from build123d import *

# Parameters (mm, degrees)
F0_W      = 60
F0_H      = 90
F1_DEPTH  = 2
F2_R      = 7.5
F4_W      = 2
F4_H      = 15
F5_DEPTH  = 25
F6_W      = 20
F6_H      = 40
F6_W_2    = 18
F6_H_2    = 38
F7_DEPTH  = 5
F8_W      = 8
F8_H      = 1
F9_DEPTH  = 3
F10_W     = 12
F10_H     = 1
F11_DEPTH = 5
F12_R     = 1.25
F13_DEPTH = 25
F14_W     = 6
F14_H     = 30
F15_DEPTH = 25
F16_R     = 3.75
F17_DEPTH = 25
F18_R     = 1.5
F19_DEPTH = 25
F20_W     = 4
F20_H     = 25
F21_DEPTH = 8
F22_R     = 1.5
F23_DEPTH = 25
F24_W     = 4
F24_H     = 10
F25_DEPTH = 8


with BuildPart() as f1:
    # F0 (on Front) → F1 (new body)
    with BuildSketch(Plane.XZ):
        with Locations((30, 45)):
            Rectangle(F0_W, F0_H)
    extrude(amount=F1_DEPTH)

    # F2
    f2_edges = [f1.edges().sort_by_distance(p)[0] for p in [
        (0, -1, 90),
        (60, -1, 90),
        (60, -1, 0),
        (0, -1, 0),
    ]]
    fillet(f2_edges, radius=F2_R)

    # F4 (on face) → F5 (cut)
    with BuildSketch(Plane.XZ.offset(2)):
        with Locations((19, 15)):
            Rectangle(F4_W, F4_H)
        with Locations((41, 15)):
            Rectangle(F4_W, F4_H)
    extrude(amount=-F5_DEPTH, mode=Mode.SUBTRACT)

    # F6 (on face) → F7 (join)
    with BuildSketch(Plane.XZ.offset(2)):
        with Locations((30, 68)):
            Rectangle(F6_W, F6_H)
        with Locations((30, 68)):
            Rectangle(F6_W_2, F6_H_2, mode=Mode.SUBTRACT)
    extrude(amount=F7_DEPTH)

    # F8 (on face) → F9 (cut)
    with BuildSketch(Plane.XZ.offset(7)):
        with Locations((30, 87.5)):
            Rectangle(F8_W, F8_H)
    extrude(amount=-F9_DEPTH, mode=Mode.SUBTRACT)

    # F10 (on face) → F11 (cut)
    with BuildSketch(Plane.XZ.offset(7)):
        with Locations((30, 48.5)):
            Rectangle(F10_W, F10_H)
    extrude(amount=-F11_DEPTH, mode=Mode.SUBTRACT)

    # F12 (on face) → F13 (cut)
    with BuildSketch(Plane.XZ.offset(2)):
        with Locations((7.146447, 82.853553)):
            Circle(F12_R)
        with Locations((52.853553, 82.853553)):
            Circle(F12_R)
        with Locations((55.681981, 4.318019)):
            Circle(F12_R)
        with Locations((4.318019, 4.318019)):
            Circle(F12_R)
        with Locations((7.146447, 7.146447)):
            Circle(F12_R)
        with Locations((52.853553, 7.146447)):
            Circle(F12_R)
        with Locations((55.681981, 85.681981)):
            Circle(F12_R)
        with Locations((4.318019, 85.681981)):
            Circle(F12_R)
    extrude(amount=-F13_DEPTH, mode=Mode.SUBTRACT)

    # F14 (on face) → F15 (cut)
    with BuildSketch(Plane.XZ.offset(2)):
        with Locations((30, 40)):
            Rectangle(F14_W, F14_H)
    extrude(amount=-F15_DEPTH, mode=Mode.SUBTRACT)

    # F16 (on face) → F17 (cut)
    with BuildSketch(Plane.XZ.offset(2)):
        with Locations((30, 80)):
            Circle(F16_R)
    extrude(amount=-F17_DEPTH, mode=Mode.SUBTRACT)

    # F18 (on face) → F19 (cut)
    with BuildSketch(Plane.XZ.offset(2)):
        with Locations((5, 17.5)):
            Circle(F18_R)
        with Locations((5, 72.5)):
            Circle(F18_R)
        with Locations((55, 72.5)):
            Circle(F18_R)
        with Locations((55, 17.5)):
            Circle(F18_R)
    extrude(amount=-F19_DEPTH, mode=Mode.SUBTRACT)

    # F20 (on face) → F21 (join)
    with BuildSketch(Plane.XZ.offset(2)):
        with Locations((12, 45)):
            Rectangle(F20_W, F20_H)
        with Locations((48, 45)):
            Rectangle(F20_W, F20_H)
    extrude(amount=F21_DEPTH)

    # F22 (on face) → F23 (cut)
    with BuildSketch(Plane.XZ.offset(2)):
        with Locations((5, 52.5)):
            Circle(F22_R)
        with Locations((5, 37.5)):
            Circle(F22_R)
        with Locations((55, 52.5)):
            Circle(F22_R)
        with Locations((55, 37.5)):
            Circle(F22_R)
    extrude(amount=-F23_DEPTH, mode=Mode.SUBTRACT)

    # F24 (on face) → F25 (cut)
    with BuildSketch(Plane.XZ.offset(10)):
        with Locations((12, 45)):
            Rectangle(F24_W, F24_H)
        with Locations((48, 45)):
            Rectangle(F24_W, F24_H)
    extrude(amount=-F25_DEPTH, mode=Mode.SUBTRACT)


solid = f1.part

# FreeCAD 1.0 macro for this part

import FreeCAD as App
import Part
import Sketcher
from FreeCAD import Vector


def edges_at(feature, points):
    """Names of the edges that pass closest to the given points."""
    edges = feature.Shape.Edges
    near = lambda p: min(range(len(edges)), key=lambda i: edges[i].distToShape(Part.Vertex(*p))[0])
    return sorted({f"Edge{near(p) + 1}" for p in points})


def add_polygon(sketch, points):
    """Adds a closed chain of lines whose ends are joined by coincident constraints."""
    first, n = sketch.GeometryCount, len(points)
    for a, b in zip(points, points[1:] + points[:1]):
        sketch.addGeometry(Part.LineSegment(App.Vector(*a, 0), App.Vector(*b, 0)), False)
    for i in range(n):
        sketch.addConstraint(Sketcher.Constraint("Coincident", first + i, 2, first + (i + 1) % n, 1))

doc = App.newDocument("Part")
body = doc.addObject("PartDesign::Body", "Body")

# Sketch on XZ plane
sketch1 = body.newObject("Sketcher::SketchObject", "Sketch")
sketch1.AttachmentSupport = (doc.getObject("XZ_Plane"), [""])
sketch1.MapMode = "FlatFace"
add_polygon(sketch1, [(0, 90), (0, 0), (60, 0), (60, 90)])  # lines 0-3
sketch1.addConstraint([
    Sketcher.Constraint("Vertical", 0),
    Sketcher.Constraint("Horizontal", 1),
    Sketcher.Constraint("Vertical", 2),
    Sketcher.Constraint("Horizontal", 3),
    Sketcher.Constraint("Coincident", 0, 2, -1, 1),
    Sketcher.Constraint("DistanceX", 1, 1, 1, 2, 60.0),
    Sketcher.Constraint("DistanceY", 0, 2, 0, 1, 90.0),
])
pad1 = body.newObject("PartDesign::Pad", "Pad")
pad1.Profile = sketch1
pad1.Length = 2
doc.recompute()

fillet = body.newObject("PartDesign::Fillet", "Fillet")
fillet.Base = (pad1, edges_at(pad1, [
    (0, -1, 90),
    (60, -1, 90),
    (60, -1, 0),
    (0, -1, 0),
]))
fillet.Radius = 7.5

# Sketch on XZ plane
sketch2 = body.newObject("Sketcher::SketchObject", "Sketch001")
sketch2.AttachmentSupport = (doc.getObject("XZ_Plane"), [""])
sketch2.MapMode = "FlatFace"
sketch2.AttachmentOffset = App.Placement(Vector(0, 0, 2), App.Rotation())
add_polygon(sketch2, [(18, 22.5), (18, 7.5), (20, 7.5), (20, 22.5)])  # lines 0-3
add_polygon(sketch2, [(40, 22.5), (40, 7.5), (42, 7.5), (42, 22.5)])  # lines 4-7
sketch2.addConstraint([
    Sketcher.Constraint("Vertical", 0),
    Sketcher.Constraint("Horizontal", 1),
    Sketcher.Constraint("Vertical", 2),
    Sketcher.Constraint("Horizontal", 3),
    Sketcher.Constraint("Vertical", 4),
    Sketcher.Constraint("Horizontal", 5),
    Sketcher.Constraint("Vertical", 6),
    Sketcher.Constraint("Horizontal", 7),
    Sketcher.Constraint("Horizontal", 1, 2, 4, 2),
    Sketcher.Constraint("Horizontal", 3, 2, 6, 2),
    Sketcher.Constraint("Equal", 3, 5),
    Sketcher.Constraint("DistanceX", 1, 1, 1, 2, 2.0),
    Sketcher.Constraint("DistanceY", 0, 2, 0, 1, 15.0),
    Sketcher.Constraint("DistanceX", -1, 1, 0, 2, 18.0),
    Sketcher.Constraint("DistanceX", -1, 1, 4, 2, 40.0),
    Sketcher.Constraint("DistanceY", -1, 1, 0, 2, 7.5),
])
pocket1 = body.newObject("PartDesign::Pocket", "Pocket")
pocket1.Profile = sketch2
pocket1.Length = 25

# Sketch on XZ plane
sketch3 = body.newObject("Sketcher::SketchObject", "Sketch002")
sketch3.AttachmentSupport = (doc.getObject("XZ_Plane"), [""])
sketch3.MapMode = "FlatFace"
sketch3.AttachmentOffset = App.Placement(Vector(0, 0, 2), App.Rotation())
add_polygon(sketch3, [(20, 88), (20, 48), (40, 48), (40, 88)])  # lines 0-3
add_polygon(sketch3, [(39, 49), (21, 49), (21, 87), (39, 87)])  # lines 4-7
sketch3.addConstraint([
    Sketcher.Constraint("Vertical", 0),
    Sketcher.Constraint("Horizontal", 1),
    Sketcher.Constraint("Vertical", 2),
    Sketcher.Constraint("Horizontal", 3),
    Sketcher.Constraint("Horizontal", 4),
    Sketcher.Constraint("Vertical", 5),
    Sketcher.Constraint("Horizontal", 6),
    Sketcher.Constraint("Vertical", 7),
    Sketcher.Constraint("DistanceX", 1, 1, 1, 2, 20.0),
    Sketcher.Constraint("DistanceX", 4, 2, 4, 1, 18.0),
    Sketcher.Constraint("DistanceY", 0, 2, 0, 1, 40.0),
    Sketcher.Constraint("DistanceY", 5, 1, 5, 2, 38.0),
    Sketcher.Constraint("DistanceX", -1, 1, 0, 2, 20.0),
    Sketcher.Constraint("DistanceY", -1, 1, 0, 2, 48.0),
    Sketcher.Constraint("DistanceX", -1, 1, 4, 2, 21.0),
    Sketcher.Constraint("DistanceY", -1, 1, 4, 2, 49.0),
])
pad2 = body.newObject("PartDesign::Pad", "Pad001")
pad2.Profile = sketch3
pad2.Length = 5

# Sketch on XZ plane
sketch4 = body.newObject("Sketcher::SketchObject", "Sketch003")
sketch4.AttachmentSupport = (doc.getObject("XZ_Plane"), [""])
sketch4.MapMode = "FlatFace"
sketch4.AttachmentOffset = App.Placement(Vector(0, 0, 7), App.Rotation())
add_polygon(sketch4, [(26, 88), (26, 87), (34, 87), (34, 88)])  # lines 0-3
sketch4.addConstraint([
    Sketcher.Constraint("Vertical", 0),
    Sketcher.Constraint("Horizontal", 1),
    Sketcher.Constraint("Vertical", 2),
    Sketcher.Constraint("Horizontal", 3),
    Sketcher.Constraint("DistanceX", 1, 1, 1, 2, 8.0),
    Sketcher.Constraint("DistanceY", 0, 2, 0, 1, 1.0),
    Sketcher.Constraint("DistanceX", -1, 1, 0, 2, 26.0),
    Sketcher.Constraint("DistanceY", -1, 1, 0, 2, 87.0),
])
pocket2 = body.newObject("PartDesign::Pocket", "Pocket001")
pocket2.Profile = sketch4
pocket2.Length = 3

# Sketch on XZ plane
sketch5 = body.newObject("Sketcher::SketchObject", "Sketch004")
sketch5.AttachmentSupport = (doc.getObject("XZ_Plane"), [""])
sketch5.MapMode = "FlatFace"
sketch5.AttachmentOffset = App.Placement(Vector(0, 0, 7), App.Rotation())
add_polygon(sketch5, [(24, 49), (24, 48), (36, 48), (36, 49)])  # lines 0-3
sketch5.addConstraint([
    Sketcher.Constraint("Vertical", 0),
    Sketcher.Constraint("Horizontal", 1),
    Sketcher.Constraint("Vertical", 2),
    Sketcher.Constraint("Horizontal", 3),
    Sketcher.Constraint("DistanceX", 1, 1, 1, 2, 12.0),
    Sketcher.Constraint("DistanceY", 0, 2, 0, 1, 1.0),
    Sketcher.Constraint("DistanceX", -1, 1, 0, 2, 24.0),
    Sketcher.Constraint("DistanceY", -1, 1, 0, 2, 48.0),
])
pocket3 = body.newObject("PartDesign::Pocket", "Pocket002")
pocket3.Profile = sketch5
pocket3.Length = 5

# Sketch on XZ plane
sketch6 = body.newObject("Sketcher::SketchObject", "Sketch005")
sketch6.AttachmentSupport = (doc.getObject("XZ_Plane"), [""])
sketch6.MapMode = "FlatFace"
sketch6.AttachmentOffset = App.Placement(Vector(0, 0, 2), App.Rotation())
sketch6.addGeometry([
    Part.Circle(Vector(7.1, 82.9, 0), Vector(0, 0, 1), 1.2),  # 0
    Part.Circle(Vector(52.9, 82.9, 0), Vector(0, 0, 1), 1.2),  # 1
    Part.Circle(Vector(55.7, 4.3, 0), Vector(0, 0, 1), 1.2),  # 2
    Part.Circle(Vector(4.3, 4.3, 0), Vector(0, 0, 1), 1.2),  # 3
    Part.Circle(Vector(7.1, 7.1, 0), Vector(0, 0, 1), 1.2),  # 4
    Part.Circle(Vector(52.9, 7.1, 0), Vector(0, 0, 1), 1.2),  # 5
    Part.Circle(Vector(55.7, 85.7, 0), Vector(0, 0, 1), 1.2),  # 6
    Part.Circle(Vector(4.3, 85.7, 0), Vector(0, 0, 1), 1.2),  # 7
], False)
sketch6.addConstraint([
    Sketcher.Constraint("Equal", 0, 1),
    Sketcher.Constraint("Equal", 1, 2),
    Sketcher.Constraint("Equal", 2, 3),
    Sketcher.Constraint("Equal", 3, 4),
    Sketcher.Constraint("Equal", 4, 5),
    Sketcher.Constraint("Equal", 5, 6),
    Sketcher.Constraint("Equal", 6, 7),
    Sketcher.Constraint("Horizontal", 0, 3, 1, 3),
    Sketcher.Constraint("Horizontal", 2, 3, 3, 3),
    Sketcher.Constraint("Horizontal", 4, 3, 5, 3),
    Sketcher.Constraint("Horizontal", 6, 3, 7, 3),
    Sketcher.Constraint("Vertical", 0, 3, 4, 3),
    Sketcher.Constraint("Vertical", 1, 3, 5, 3),
    Sketcher.Constraint("Vertical", 2, 3, 6, 3),
    Sketcher.Constraint("Vertical", 3, 3, 7, 3),
    Sketcher.Constraint("Diameter", 0, 2.5),
    Sketcher.Constraint("DistanceX", -1, 1, 2, 3, 55.681981),
    Sketcher.Constraint("DistanceY", -1, 1, 2, 3, 4.318019),
    Sketcher.Constraint("DistanceX", -1, 1, 3, 3, 4.318019),
    Sketcher.Constraint("DistanceY", -1, 1, 6, 3, 85.681981),
    Sketcher.Constraint("DistanceX", 1, 3, 2, 3, 2.828428),
    Sketcher.Constraint("DistanceX", 3, 3, 0, 3, 2.828428),
    Sketcher.Constraint("DistanceY", 3, 3, 4, 3, 2.828428),
    Sketcher.Constraint("DistanceY", -1, 1, 0, 3, 82.853553),
])
pocket4 = body.newObject("PartDesign::Pocket", "Pocket003")
pocket4.Profile = sketch6
pocket4.Length = 25

# Sketch on XZ plane
sketch7 = body.newObject("Sketcher::SketchObject", "Sketch006")
sketch7.AttachmentSupport = (doc.getObject("XZ_Plane"), [""])
sketch7.MapMode = "FlatFace"
sketch7.AttachmentOffset = App.Placement(Vector(0, 0, 2), App.Rotation())
add_polygon(sketch7, [(27, 55), (27, 25), (33, 25), (33, 55)])  # lines 0-3
sketch7.addConstraint([
    Sketcher.Constraint("Vertical", 0),
    Sketcher.Constraint("Horizontal", 1),
    Sketcher.Constraint("Vertical", 2),
    Sketcher.Constraint("Horizontal", 3),
    Sketcher.Constraint("DistanceX", 1, 1, 1, 2, 6.0),
    Sketcher.Constraint("DistanceY", 0, 2, 0, 1, 30.0),
    Sketcher.Constraint("DistanceX", -1, 1, 0, 2, 27.0),
    Sketcher.Constraint("DistanceY", -1, 1, 0, 2, 25.0),
])
pocket5 = body.newObject("PartDesign::Pocket", "Pocket004")
pocket5.Profile = sketch7
pocket5.Length = 25

# Sketch on XZ plane
sketch8 = body.newObject("Sketcher::SketchObject", "Sketch007")
sketch8.AttachmentSupport = (doc.getObject("XZ_Plane"), [""])
sketch8.MapMode = "FlatFace"
sketch8.AttachmentOffset = App.Placement(Vector(0, 0, 2), App.Rotation())
sketch8.addGeometry(Part.Circle(Vector(30, 80, 0), Vector(0, 0, 1), 3.8), False)
sketch8.addConstraint([
    Sketcher.Constraint("Diameter", 0, 7.5),
    Sketcher.Constraint("DistanceX", -1, 1, 0, 3, 30.0),
    Sketcher.Constraint("DistanceY", -1, 1, 0, 3, 80.0),
])
pocket6 = body.newObject("PartDesign::Pocket", "Pocket005")
pocket6.Profile = sketch8
pocket6.Length = 25

# Sketch on XZ plane
sketch9 = body.newObject("Sketcher::SketchObject", "Sketch008")
sketch9.AttachmentSupport = (doc.getObject("XZ_Plane"), [""])
sketch9.MapMode = "FlatFace"
sketch9.AttachmentOffset = App.Placement(Vector(0, 0, 2), App.Rotation())
sketch9.addGeometry([
    Part.Circle(Vector(5, 17.5, 0), Vector(0, 0, 1), 1.5),
    Part.Circle(Vector(5, 72.5, 0), Vector(0, 0, 1), 1.5),
    Part.Circle(Vector(55, 72.5, 0), Vector(0, 0, 1), 1.5),
    Part.Circle(Vector(55, 17.5, 0), Vector(0, 0, 1), 1.5),
], False)
sketch9.addConstraint([
    Sketcher.Constraint("Equal", 0, 1),
    Sketcher.Constraint("Equal", 1, 2),
    Sketcher.Constraint("Equal", 2, 3),
    Sketcher.Constraint("Horizontal", 1, 3, 2, 3),
    Sketcher.Constraint("Horizontal", 0, 3, 3, 3),
    Sketcher.Constraint("Vertical", 0, 3, 1, 3),
    Sketcher.Constraint("Vertical", 2, 3, 3, 3),
    Sketcher.Constraint("Diameter", 0, 3.0),
    Sketcher.Constraint("DistanceX", -1, 1, 0, 3, 5.0),
    Sketcher.Constraint("DistanceX", -1, 1, 2, 3, 55.0),
    Sketcher.Constraint("DistanceY", 0, 3, 1, 3, 55.0),
    Sketcher.Constraint("DistanceY", -1, 1, 0, 3, 17.5),
])
pocket7 = body.newObject("PartDesign::Pocket", "Pocket006")
pocket7.Profile = sketch9
pocket7.Length = 25

# Sketch on XZ plane
sketch10 = body.newObject("Sketcher::SketchObject", "Sketch009")
sketch10.AttachmentSupport = (doc.getObject("XZ_Plane"), [""])
sketch10.MapMode = "FlatFace"
sketch10.AttachmentOffset = App.Placement(Vector(0, 0, 2), App.Rotation())
add_polygon(sketch10, [(10, 57.5), (10, 32.5), (14, 32.5), (14, 57.5)])  # lines 0-3
add_polygon(sketch10, [(46, 57.5), (46, 32.5), (50, 32.5), (50, 57.5)])  # lines 4-7
sketch10.addConstraint([
    Sketcher.Constraint("Vertical", 0),
    Sketcher.Constraint("Horizontal", 1),
    Sketcher.Constraint("Vertical", 2),
    Sketcher.Constraint("Horizontal", 3),
    Sketcher.Constraint("Vertical", 4),
    Sketcher.Constraint("Horizontal", 5),
    Sketcher.Constraint("Vertical", 6),
    Sketcher.Constraint("Horizontal", 7),
    Sketcher.Constraint("Horizontal", 1, 2, 4, 2),
    Sketcher.Constraint("Horizontal", 3, 2, 6, 2),
    Sketcher.Constraint("Equal", 3, 5),
    Sketcher.Constraint("DistanceX", 1, 1, 1, 2, 4.0),
    Sketcher.Constraint("DistanceY", 0, 2, 0, 1, 25.0),
    Sketcher.Constraint("DistanceX", -1, 1, 0, 2, 10.0),
    Sketcher.Constraint("DistanceX", -1, 1, 4, 2, 46.0),
    Sketcher.Constraint("DistanceY", -1, 1, 0, 2, 32.5),
])
pad3 = body.newObject("PartDesign::Pad", "Pad002")
pad3.Profile = sketch10
pad3.Length = 8

# Sketch on XZ plane
sketch11 = body.newObject("Sketcher::SketchObject", "Sketch010")
sketch11.AttachmentSupport = (doc.getObject("XZ_Plane"), [""])
sketch11.MapMode = "FlatFace"
sketch11.AttachmentOffset = App.Placement(Vector(0, 0, 2), App.Rotation())
sketch11.addGeometry([
    Part.Circle(Vector(5, 52.5, 0), Vector(0, 0, 1), 1.5),
    Part.Circle(Vector(5, 37.5, 0), Vector(0, 0, 1), 1.5),
    Part.Circle(Vector(55, 52.5, 0), Vector(0, 0, 1), 1.5),
    Part.Circle(Vector(55, 37.5, 0), Vector(0, 0, 1), 1.5),
], False)
sketch11.addConstraint([
    Sketcher.Constraint("Equal", 0, 1),
    Sketcher.Constraint("Equal", 1, 2),
    Sketcher.Constraint("Equal", 2, 3),
    Sketcher.Constraint("Horizontal", 0, 3, 2, 3),
    Sketcher.Constraint("Horizontal", 1, 3, 3, 3),
    Sketcher.Constraint("Vertical", 0, 3, 1, 3),
    Sketcher.Constraint("Vertical", 2, 3, 3, 3),
    Sketcher.Constraint("Diameter", 0, 3.0),
    Sketcher.Constraint("DistanceX", -1, 1, 0, 3, 5.0),
    Sketcher.Constraint("DistanceX", -1, 1, 2, 3, 55.0),
    Sketcher.Constraint("DistanceY", 1, 3, 0, 3, 15.0),
    Sketcher.Constraint("DistanceY", -1, 1, 0, 3, 52.5),
])
pocket8 = body.newObject("PartDesign::Pocket", "Pocket007")
pocket8.Profile = sketch11
pocket8.Length = 25

# Sketch on XZ plane
sketch12 = body.newObject("Sketcher::SketchObject", "Sketch011")
sketch12.AttachmentSupport = (doc.getObject("XZ_Plane"), [""])
sketch12.MapMode = "FlatFace"
sketch12.AttachmentOffset = App.Placement(Vector(0, 0, 10), App.Rotation())
add_polygon(sketch12, [(10, 50), (10, 40), (14, 40), (14, 50)])  # lines 0-3
add_polygon(sketch12, [(46, 50), (46, 40), (50, 40), (50, 50)])  # lines 4-7
sketch12.addConstraint([
    Sketcher.Constraint("Vertical", 0),
    Sketcher.Constraint("Horizontal", 1),
    Sketcher.Constraint("Vertical", 2),
    Sketcher.Constraint("Horizontal", 3),
    Sketcher.Constraint("Vertical", 4),
    Sketcher.Constraint("Horizontal", 5),
    Sketcher.Constraint("Vertical", 6),
    Sketcher.Constraint("Horizontal", 7),
    Sketcher.Constraint("Horizontal", 1, 2, 4, 2),
    Sketcher.Constraint("Horizontal", 3, 2, 6, 2),
    Sketcher.Constraint("Equal", 3, 5),
    Sketcher.Constraint("DistanceX", 1, 1, 1, 2, 4.0),
    Sketcher.Constraint("DistanceY", 0, 2, 0, 1, 10.0),
    Sketcher.Constraint("DistanceX", -1, 1, 0, 2, 10.0),
    Sketcher.Constraint("DistanceY", -1, 1, 0, 2, 40.0),
    Sketcher.Constraint("DistanceX", -1, 1, 4, 2, 46.0),
])
pocket9 = body.newObject("PartDesign::Pocket", "Pocket008")
pocket9.Profile = sketch12
pocket9.Length = 8

doc.recompute()
